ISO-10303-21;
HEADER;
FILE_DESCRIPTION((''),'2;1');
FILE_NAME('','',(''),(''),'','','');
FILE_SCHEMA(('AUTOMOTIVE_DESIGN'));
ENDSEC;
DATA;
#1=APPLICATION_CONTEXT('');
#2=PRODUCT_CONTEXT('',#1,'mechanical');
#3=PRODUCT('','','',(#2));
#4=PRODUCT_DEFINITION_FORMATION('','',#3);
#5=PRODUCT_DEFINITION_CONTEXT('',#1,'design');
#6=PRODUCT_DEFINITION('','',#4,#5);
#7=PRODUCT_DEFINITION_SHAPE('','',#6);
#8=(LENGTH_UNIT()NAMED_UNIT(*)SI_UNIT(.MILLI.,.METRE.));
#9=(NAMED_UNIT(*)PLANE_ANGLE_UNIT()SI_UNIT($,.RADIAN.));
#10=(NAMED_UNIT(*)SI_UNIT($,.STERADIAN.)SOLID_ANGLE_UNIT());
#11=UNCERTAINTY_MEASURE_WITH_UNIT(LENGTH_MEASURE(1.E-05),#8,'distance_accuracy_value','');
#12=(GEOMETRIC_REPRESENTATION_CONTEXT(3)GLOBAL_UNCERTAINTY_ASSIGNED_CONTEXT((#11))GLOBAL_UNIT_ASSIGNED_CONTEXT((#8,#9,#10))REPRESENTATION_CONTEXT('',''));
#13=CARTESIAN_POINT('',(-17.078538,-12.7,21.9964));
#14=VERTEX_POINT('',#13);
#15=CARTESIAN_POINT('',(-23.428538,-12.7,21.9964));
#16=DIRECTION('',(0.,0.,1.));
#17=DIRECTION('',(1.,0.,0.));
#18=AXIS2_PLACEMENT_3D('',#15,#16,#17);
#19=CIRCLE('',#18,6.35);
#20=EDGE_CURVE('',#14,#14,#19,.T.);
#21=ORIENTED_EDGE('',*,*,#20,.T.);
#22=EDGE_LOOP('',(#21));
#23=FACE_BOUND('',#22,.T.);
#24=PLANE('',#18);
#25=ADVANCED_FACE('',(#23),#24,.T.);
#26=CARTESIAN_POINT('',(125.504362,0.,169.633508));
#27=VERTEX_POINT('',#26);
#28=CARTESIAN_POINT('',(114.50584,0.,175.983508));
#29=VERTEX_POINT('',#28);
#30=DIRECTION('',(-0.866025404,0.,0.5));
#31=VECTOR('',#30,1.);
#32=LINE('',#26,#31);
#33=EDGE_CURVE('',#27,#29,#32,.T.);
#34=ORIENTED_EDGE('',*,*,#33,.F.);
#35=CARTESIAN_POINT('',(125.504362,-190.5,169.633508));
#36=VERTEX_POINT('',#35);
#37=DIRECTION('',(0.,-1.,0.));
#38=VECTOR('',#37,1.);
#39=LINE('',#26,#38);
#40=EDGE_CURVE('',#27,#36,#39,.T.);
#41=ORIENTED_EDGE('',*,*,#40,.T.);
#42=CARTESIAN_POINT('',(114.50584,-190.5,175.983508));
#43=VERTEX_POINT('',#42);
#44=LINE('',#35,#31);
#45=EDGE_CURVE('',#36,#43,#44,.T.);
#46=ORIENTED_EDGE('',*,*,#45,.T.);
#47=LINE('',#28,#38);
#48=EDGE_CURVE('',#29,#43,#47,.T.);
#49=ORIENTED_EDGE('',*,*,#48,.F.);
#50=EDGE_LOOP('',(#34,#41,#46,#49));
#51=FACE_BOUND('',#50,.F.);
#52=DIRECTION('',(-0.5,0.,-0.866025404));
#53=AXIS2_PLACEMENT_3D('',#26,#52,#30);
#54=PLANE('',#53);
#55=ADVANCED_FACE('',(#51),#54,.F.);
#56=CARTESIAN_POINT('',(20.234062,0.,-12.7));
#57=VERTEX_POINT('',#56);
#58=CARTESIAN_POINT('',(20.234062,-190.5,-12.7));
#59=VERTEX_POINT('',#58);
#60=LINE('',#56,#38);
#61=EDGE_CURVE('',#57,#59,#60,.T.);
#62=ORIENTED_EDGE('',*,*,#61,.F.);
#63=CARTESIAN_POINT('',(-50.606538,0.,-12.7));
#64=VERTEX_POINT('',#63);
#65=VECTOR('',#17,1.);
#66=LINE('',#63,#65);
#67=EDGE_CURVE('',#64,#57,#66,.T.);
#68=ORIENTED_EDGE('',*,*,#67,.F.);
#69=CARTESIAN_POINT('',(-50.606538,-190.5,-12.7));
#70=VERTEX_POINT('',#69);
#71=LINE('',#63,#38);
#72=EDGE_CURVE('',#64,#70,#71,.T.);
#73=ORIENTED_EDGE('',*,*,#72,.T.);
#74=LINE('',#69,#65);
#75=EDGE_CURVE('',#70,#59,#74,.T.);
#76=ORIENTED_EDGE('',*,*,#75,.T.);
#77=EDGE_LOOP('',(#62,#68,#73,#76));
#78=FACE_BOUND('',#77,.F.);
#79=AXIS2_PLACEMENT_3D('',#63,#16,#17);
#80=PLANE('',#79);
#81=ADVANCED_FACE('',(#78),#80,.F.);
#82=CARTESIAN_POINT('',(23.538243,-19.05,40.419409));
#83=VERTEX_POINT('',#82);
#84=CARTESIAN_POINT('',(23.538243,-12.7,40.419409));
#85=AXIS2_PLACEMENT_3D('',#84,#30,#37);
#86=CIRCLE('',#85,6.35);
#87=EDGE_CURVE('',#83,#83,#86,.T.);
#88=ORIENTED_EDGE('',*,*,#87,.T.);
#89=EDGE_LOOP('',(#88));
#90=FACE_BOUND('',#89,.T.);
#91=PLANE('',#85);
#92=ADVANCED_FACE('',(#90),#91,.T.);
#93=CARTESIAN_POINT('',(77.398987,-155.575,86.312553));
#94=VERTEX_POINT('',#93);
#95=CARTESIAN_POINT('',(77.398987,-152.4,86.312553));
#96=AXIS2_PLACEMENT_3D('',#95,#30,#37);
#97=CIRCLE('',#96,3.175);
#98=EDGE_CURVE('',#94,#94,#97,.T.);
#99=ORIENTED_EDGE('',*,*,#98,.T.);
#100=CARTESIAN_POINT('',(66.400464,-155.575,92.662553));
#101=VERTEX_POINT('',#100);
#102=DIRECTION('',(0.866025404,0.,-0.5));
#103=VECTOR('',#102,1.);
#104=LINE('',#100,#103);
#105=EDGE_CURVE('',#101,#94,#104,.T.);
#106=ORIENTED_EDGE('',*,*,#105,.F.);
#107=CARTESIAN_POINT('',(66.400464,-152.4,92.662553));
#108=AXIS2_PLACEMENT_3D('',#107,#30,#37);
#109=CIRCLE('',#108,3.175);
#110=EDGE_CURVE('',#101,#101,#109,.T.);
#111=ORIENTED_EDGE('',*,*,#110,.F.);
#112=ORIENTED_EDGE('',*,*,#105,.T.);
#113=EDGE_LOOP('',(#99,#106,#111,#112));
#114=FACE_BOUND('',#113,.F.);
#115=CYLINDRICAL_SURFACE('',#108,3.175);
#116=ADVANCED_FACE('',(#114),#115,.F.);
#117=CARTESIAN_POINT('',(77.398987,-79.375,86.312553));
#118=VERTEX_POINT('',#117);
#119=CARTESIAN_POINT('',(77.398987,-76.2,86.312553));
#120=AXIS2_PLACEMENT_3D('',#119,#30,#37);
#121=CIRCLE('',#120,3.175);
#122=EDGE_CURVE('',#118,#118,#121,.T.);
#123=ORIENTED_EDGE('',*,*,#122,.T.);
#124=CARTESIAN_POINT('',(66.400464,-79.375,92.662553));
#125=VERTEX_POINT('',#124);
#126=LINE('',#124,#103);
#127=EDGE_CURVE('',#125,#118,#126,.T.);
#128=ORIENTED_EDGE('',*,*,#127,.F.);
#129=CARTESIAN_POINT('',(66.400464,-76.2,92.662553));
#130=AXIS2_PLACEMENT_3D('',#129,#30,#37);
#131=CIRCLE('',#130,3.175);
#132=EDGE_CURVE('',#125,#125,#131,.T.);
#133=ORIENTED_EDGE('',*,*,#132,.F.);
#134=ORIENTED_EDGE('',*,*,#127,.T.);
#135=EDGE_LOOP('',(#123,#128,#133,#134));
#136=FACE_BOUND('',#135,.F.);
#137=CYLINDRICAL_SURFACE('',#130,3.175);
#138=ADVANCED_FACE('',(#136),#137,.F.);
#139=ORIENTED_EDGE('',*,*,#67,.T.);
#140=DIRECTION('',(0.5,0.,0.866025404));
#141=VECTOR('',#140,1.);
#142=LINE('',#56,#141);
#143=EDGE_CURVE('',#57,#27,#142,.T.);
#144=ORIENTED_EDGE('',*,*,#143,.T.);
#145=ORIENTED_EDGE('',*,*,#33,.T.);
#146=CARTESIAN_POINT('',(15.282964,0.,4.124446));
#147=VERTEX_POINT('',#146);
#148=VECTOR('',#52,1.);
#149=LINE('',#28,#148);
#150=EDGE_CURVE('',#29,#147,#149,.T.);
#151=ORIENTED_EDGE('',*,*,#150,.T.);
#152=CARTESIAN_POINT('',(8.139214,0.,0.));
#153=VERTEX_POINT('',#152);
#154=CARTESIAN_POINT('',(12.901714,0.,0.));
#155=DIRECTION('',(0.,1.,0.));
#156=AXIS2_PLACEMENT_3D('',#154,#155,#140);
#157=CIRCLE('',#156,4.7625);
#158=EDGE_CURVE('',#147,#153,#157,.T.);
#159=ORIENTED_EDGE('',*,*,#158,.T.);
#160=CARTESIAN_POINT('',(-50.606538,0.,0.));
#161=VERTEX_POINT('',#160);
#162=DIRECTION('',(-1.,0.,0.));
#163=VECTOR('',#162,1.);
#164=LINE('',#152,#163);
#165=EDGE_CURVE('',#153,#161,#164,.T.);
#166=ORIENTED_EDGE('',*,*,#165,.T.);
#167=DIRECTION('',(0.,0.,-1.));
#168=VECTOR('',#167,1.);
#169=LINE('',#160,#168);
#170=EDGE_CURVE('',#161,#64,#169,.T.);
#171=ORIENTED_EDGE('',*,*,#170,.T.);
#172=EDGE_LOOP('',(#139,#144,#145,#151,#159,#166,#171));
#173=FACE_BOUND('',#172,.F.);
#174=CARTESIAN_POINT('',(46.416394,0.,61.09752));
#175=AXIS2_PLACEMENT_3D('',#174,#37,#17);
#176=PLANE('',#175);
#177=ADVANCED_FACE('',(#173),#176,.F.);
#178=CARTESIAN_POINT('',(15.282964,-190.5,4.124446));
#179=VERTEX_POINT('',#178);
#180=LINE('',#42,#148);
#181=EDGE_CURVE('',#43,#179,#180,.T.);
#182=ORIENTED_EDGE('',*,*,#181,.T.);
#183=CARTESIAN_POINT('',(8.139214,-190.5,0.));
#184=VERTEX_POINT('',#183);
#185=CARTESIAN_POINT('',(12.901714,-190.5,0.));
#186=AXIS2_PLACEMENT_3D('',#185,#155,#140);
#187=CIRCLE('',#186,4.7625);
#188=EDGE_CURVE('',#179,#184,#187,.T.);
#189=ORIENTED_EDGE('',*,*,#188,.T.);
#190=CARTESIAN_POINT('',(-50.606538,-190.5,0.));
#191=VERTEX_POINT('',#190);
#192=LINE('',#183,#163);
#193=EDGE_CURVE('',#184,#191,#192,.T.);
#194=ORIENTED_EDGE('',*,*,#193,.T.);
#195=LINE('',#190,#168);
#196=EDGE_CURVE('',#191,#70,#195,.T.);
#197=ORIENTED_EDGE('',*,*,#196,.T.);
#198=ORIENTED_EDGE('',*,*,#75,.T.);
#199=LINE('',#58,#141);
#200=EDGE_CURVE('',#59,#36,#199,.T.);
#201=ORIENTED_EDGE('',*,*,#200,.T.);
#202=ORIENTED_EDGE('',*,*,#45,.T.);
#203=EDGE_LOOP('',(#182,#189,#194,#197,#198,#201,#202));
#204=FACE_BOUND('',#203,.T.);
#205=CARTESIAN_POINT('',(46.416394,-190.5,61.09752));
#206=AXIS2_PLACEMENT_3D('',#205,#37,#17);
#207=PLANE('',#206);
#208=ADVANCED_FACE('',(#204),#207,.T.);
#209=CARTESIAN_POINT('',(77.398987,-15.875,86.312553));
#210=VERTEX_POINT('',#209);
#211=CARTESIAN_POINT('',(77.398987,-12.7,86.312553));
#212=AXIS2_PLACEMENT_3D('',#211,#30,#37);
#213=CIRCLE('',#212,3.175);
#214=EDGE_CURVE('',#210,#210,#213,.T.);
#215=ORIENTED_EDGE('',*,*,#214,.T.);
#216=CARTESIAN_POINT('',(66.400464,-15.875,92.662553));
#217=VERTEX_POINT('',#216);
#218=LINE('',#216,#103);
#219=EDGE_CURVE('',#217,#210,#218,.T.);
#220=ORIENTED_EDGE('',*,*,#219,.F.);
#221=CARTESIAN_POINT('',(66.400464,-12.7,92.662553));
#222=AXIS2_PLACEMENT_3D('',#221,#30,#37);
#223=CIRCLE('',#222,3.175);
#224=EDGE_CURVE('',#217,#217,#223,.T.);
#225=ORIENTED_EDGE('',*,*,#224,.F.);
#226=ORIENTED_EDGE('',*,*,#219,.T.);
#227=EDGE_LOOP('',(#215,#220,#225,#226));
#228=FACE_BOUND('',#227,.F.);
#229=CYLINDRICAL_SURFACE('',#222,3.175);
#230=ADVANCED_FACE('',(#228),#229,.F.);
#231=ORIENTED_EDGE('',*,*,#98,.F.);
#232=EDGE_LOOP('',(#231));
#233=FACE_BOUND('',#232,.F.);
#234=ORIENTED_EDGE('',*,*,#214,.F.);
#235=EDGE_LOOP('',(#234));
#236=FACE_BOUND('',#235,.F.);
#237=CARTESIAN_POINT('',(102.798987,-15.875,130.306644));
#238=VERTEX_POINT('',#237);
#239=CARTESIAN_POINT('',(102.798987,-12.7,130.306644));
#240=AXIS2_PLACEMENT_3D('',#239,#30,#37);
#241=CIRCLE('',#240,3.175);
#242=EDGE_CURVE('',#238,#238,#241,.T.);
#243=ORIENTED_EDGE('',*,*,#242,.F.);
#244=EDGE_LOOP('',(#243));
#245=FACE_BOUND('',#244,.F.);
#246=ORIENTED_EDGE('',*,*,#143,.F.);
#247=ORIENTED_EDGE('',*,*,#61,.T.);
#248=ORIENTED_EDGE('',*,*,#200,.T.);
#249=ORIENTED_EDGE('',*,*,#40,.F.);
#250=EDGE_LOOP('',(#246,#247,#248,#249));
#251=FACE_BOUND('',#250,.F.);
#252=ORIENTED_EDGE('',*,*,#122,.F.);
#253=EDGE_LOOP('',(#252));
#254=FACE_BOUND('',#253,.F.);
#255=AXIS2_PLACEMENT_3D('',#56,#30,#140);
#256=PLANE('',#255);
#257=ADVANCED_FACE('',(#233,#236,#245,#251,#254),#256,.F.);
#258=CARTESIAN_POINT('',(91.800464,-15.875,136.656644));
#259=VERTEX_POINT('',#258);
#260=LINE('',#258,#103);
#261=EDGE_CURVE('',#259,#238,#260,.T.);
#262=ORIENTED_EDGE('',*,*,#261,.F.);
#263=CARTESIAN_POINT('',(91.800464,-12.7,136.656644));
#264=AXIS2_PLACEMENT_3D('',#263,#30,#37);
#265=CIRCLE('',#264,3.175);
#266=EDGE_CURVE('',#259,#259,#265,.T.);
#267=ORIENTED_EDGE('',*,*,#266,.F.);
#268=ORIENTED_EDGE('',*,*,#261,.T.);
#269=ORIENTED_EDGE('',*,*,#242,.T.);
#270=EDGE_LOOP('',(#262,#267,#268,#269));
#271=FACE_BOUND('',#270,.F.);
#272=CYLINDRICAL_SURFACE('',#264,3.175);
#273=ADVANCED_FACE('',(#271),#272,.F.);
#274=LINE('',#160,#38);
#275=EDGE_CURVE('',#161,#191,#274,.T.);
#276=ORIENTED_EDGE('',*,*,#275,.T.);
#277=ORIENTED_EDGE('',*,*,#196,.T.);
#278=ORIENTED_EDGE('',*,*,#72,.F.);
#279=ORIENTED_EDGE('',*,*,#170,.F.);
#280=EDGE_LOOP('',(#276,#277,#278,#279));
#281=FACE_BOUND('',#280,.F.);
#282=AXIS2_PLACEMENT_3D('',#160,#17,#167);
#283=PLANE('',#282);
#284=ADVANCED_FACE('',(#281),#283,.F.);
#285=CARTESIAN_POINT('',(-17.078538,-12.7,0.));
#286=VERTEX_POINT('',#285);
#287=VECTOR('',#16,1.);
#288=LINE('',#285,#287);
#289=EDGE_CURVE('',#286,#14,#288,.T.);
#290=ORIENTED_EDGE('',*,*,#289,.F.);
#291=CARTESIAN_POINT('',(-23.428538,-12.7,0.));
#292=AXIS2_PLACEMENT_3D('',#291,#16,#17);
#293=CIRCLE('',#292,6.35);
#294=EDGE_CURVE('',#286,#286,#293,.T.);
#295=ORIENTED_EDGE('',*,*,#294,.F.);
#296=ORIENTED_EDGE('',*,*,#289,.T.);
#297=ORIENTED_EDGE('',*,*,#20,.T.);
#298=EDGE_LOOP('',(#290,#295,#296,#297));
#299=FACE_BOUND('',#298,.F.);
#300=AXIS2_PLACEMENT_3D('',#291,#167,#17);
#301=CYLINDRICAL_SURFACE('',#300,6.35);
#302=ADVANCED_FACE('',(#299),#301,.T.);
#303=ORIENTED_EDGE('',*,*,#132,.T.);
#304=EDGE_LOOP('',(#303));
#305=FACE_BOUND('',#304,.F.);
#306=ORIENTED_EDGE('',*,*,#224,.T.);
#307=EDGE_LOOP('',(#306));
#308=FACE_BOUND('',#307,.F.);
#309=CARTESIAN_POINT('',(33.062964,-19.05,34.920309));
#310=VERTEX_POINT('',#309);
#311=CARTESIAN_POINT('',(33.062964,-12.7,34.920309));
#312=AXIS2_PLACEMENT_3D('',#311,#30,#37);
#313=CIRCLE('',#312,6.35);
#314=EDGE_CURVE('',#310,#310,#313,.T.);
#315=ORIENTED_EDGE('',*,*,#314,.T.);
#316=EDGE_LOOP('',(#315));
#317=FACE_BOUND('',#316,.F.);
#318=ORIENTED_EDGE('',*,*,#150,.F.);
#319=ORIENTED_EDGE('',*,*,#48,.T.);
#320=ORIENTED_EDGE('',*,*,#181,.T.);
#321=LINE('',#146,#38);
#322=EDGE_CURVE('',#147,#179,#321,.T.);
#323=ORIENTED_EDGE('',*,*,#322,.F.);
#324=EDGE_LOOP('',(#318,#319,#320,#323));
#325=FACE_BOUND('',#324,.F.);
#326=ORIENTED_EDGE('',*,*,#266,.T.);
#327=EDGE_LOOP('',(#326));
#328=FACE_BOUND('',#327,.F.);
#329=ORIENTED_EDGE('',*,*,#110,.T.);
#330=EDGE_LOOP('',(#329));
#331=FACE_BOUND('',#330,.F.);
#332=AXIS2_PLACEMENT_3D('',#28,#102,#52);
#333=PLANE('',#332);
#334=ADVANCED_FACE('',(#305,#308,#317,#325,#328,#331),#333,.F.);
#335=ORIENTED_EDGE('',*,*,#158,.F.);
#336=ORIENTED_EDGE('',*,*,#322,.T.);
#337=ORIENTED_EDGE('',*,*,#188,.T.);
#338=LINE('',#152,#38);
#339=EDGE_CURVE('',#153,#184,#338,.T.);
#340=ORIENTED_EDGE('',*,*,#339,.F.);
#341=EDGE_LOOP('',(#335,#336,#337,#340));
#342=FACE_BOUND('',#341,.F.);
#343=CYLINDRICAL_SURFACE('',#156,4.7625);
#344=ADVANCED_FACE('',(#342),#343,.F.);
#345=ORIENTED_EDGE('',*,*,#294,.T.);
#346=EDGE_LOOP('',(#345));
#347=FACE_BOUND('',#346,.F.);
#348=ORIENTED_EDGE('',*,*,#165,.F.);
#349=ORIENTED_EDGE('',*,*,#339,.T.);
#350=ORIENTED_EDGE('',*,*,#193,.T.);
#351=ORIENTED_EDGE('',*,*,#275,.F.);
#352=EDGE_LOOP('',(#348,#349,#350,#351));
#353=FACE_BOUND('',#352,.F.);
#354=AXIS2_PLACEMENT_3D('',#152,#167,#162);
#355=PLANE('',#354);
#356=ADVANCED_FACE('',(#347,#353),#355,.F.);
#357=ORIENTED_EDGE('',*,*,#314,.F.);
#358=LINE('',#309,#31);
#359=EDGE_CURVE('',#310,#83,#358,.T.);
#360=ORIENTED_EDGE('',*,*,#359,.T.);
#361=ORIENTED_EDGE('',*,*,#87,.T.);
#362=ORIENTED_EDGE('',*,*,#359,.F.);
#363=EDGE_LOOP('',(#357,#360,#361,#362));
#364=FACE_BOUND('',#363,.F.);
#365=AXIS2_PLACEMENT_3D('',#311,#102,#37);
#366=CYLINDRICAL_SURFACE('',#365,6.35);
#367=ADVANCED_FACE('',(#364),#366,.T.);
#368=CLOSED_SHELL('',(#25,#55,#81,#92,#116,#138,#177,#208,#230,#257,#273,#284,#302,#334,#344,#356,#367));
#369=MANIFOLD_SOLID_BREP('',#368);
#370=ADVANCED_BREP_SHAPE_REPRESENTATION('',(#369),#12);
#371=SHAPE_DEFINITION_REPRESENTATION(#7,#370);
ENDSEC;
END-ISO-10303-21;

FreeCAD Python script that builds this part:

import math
import FreeCAD as App
import Part
import Sketcher
from FreeCAD import Vector
Q = App.Units.Quantity

doc = App.newDocument("Part")
params = doc.addObject("Spreadsheet::Sheet", "Params")
for row, (alias, value) in enumerate([
    ("sketch1_height", "0.5 in"),
    ("sketch1_radius", "0.1875 in"),
    ("sketch1_length", "0.5 in"),
    ("sketch1_width", "2.789 in"),
    ("sketch1_length2", "8.289 in"),
    ("pad1_length", "7.5 in"),
    ("sketch2_diameter", "0.5 in"),
    ("pad2_length", "0.866 in"),
    ("sketch3_diameter", "0.25 in"),
    ("sketch4_diameter", "0.5 in"),
    ("pad3_length", "0.433 in"),
], start=1):
    params.set(f"A{row}", alias)
    params.set(f"B{row}", "=" + value)
    params.setAlias(f"B{row}", alias)

body = doc.addObject("PartDesign::Body", "Body")

sketch1 = body.newObject("Sketcher::SketchObject", "Sketch")
sketch1.AttachmentSupport = (doc.getObject("XZ_Plane"), [""])
sketch1.MapMode = "FlatFace"
sketch1.addGeometry([
    Part.LineSegment(Vector(8.139214, 0, 0), Vector(-50.606538, 0, 0)),
    Part.LineSegment(Vector(-50.606538, 0, 0), Vector(-50.606538, -12.7, 0)),
    Part.LineSegment(Vector(-50.606538, -12.7, 0), Vector(20.234062, -12.7, 0)),
    Part.LineSegment(Vector(20.234062, -12.7, 0), Vector(125.504362, 169.633508, 0)),
    Part.LineSegment(Vector(125.504362, 169.633508, 0), Vector(114.50584, 175.983508, 0)),
    Part.LineSegment(Vector(114.50584, 175.983508, 0), Vector(15.282964, 4.124446, 0)),
    Part.ArcOfCircle(Part.Circle(Vector(12.901714, 0, 0), Vector(0, 0, 1), 4.7625), math.radians(180), math.radians(420)),
], False)
sketch1.addConstraint([
    Sketcher.Constraint("Coincident", 0, 2, 1, 1),
    Sketcher.Constraint("Coincident", 1, 2, 2, 1),
    Sketcher.Constraint("Coincident", 2, 2, 3, 1),
    Sketcher.Constraint("Coincident", 3, 2, 4, 1),
    Sketcher.Constraint("Coincident", 4, 2, 5, 1),
    Sketcher.Constraint("Coincident", 5, 2, 6, 2),
    Sketcher.Constraint("Coincident", 6, 1, 0, 1),
    Sketcher.Constraint("Horizontal", 0),
    Sketcher.Constraint("Vertical", 1),
    Sketcher.Constraint("Horizontal", 2),
    Sketcher.Constraint("PointOnObject", 6, 3, -1),
    Sketcher.Constraint("PointOnObject", 0, 2, -1),
    Sketcher.Constraint("Perpendicular", 3, 4),
    Sketcher.Constraint("Perpendicular", 4, 5),
    Sketcher.Constraint("DistanceY", 1, 2, 1, 1, Q("0.5 in")),
    Sketcher.Constraint("Angle", 3, Q("60 deg")),
    Sketcher.Constraint("Radius", 6, Q("0.1875 in")),
    Sketcher.Constraint("Distance", 4, Q("0.5 in")),
    Sketcher.Constraint("DistanceX", 2, 1, 2, 2, Q("2.789 in")),
    Sketcher.Constraint("Distance", 3, Q("8.289 in")),
    Sketcher.Constraint("DistanceX", 6, 3, 5, 2, Q("0.09375 in")),
    Sketcher.Constraint("DistanceX", -1, 1, 4, 2, Q("114.50584 mm")),
])
sketch1.setExpression("Constraints[14]", "Params.sketch1_height")
sketch1.setExpression("Constraints[16]", "Params.sketch1_radius")
sketch1.setExpression("Constraints[17]", "Params.sketch1_length")
sketch1.setExpression("Constraints[18]", "Params.sketch1_width")
sketch1.setExpression("Constraints[19]", "Params.sketch1_length2")
pad1 = body.newObject("PartDesign::Pad", "Pad")
pad1.Profile = sketch1
pad1.setExpression("Length", "Params.pad1_length")

sketch2 = body.newObject("Sketcher::SketchObject", "Sketch001")
sketch2.AttachmentSupport = (doc.getObject("XY_Plane"), [""])
sketch2.MapMode = "FlatFace"
sketch2.addGeometry(Part.Circle(Vector(-23.428538, -12.7, 0), Vector(0, 0, 1), 6.35), False)
sketch2.addConstraint([
    Sketcher.Constraint("Diameter", 0, Q("0.5 in")),
    Sketcher.Constraint("DistanceY", 0, 3, -1, 1, Q("0.5 in")),
    Sketcher.Constraint("DistanceX", 0, 3, -1, 1, Q("23.428538 mm")),
])
sketch2.setExpression("Constraints[0]", "Params.sketch2_diameter")
pad2 = body.newObject("PartDesign::Pad", "Pad001")
pad2.Profile = sketch2
pad2.setExpression("Length", "Params.pad2_length")

sketch3 = body.newObject("Sketcher::SketchObject", "Sketch002")
sketch3.Placement = App.Placement(Vector(9.676285, 0, -5.586606), App.Rotation(Vector(0, -1, 0), Vector(0.5, 0, 0.866025404), Vector(-0.866025404, 0, 0.5), "ZXY"))
sketch3.addGeometry([
    Part.Circle(Vector(152.4, 113.448357, 0), Vector(0, 0, 1), 3.175),
    Part.Circle(Vector(76.2, 113.448357, 0), Vector(0, 0, 1), 3.175),
    Part.Circle(Vector(12.7, 113.448357, 0), Vector(0, 0, 1), 3.175),
    Part.Circle(Vector(12.7, 164.248357, 0), Vector(0, 0, 1), 3.175),
], False)
sketch3.addConstraint([
    Sketcher.Constraint("Equal", 0, 1),
    Sketcher.Constraint("Equal", 1, 2),
    Sketcher.Constraint("Equal", 2, 3),
    Sketcher.Constraint("Horizontal", 0, 3, 1, 3),
    Sketcher.Constraint("Horizontal", 1, 3, 2, 3),
    Sketcher.Constraint("Vertical", 2, 3, 3, 3),
    Sketcher.Constraint("Diameter", 0, Q("0.25 in")),
    Sketcher.Constraint("DistanceX", -1, 1, 0, 3, Q("6 in")),
    Sketcher.Constraint("DistanceX", -1, 1, 1, 3, Q("3 in")),
    Sketcher.Constraint("DistanceY", 2, 3, 3, 3, Q("2 in")),
    Sketcher.Constraint("DistanceX", -1, 1, 2, 3, Q("0.5 in")),
    Sketcher.Constraint("DistanceY", -1, 1, 0, 3, Q("113.448357 mm")),
])
sketch3.setExpression("Constraints[6]", "Params.sketch3_diameter")
pocket1 = body.newObject("PartDesign::Pocket", "Pocket")
pocket1.Profile = sketch3
pocket1.Type = "ThroughAll"

sketch4 = body.newObject("Sketcher::SketchObject", "Sketch003")
sketch4.Placement = App.Placement(Vector(9.676285, 0, -5.586606), App.Rotation(Vector(0, -1, 0), Vector(0.5, 0, 0.866025404), Vector(-0.866025404, 0, 0.5), "ZXY"))
sketch4.addGeometry(Part.Circle(Vector(12.7, 46.773357, 0), Vector(0, 0, 1), 6.35), False)
sketch4.addConstraint([
    Sketcher.Constraint("Diameter", 0, Q("0.5 in")),
    Sketcher.Constraint("DistanceX", -1, 1, 0, 3, Q("0.5 in")),
    Sketcher.Constraint("DistanceY", -1, 1, 0, 3, Q("46.773357 mm")),
])
sketch4.setExpression("Constraints[0]", "Params.sketch4_diameter")
pad3 = body.newObject("PartDesign::Pad", "Pad002")
pad3.Profile = sketch4
pad3.setExpression("Length", "Params.pad3_length")

doc.recompute()
